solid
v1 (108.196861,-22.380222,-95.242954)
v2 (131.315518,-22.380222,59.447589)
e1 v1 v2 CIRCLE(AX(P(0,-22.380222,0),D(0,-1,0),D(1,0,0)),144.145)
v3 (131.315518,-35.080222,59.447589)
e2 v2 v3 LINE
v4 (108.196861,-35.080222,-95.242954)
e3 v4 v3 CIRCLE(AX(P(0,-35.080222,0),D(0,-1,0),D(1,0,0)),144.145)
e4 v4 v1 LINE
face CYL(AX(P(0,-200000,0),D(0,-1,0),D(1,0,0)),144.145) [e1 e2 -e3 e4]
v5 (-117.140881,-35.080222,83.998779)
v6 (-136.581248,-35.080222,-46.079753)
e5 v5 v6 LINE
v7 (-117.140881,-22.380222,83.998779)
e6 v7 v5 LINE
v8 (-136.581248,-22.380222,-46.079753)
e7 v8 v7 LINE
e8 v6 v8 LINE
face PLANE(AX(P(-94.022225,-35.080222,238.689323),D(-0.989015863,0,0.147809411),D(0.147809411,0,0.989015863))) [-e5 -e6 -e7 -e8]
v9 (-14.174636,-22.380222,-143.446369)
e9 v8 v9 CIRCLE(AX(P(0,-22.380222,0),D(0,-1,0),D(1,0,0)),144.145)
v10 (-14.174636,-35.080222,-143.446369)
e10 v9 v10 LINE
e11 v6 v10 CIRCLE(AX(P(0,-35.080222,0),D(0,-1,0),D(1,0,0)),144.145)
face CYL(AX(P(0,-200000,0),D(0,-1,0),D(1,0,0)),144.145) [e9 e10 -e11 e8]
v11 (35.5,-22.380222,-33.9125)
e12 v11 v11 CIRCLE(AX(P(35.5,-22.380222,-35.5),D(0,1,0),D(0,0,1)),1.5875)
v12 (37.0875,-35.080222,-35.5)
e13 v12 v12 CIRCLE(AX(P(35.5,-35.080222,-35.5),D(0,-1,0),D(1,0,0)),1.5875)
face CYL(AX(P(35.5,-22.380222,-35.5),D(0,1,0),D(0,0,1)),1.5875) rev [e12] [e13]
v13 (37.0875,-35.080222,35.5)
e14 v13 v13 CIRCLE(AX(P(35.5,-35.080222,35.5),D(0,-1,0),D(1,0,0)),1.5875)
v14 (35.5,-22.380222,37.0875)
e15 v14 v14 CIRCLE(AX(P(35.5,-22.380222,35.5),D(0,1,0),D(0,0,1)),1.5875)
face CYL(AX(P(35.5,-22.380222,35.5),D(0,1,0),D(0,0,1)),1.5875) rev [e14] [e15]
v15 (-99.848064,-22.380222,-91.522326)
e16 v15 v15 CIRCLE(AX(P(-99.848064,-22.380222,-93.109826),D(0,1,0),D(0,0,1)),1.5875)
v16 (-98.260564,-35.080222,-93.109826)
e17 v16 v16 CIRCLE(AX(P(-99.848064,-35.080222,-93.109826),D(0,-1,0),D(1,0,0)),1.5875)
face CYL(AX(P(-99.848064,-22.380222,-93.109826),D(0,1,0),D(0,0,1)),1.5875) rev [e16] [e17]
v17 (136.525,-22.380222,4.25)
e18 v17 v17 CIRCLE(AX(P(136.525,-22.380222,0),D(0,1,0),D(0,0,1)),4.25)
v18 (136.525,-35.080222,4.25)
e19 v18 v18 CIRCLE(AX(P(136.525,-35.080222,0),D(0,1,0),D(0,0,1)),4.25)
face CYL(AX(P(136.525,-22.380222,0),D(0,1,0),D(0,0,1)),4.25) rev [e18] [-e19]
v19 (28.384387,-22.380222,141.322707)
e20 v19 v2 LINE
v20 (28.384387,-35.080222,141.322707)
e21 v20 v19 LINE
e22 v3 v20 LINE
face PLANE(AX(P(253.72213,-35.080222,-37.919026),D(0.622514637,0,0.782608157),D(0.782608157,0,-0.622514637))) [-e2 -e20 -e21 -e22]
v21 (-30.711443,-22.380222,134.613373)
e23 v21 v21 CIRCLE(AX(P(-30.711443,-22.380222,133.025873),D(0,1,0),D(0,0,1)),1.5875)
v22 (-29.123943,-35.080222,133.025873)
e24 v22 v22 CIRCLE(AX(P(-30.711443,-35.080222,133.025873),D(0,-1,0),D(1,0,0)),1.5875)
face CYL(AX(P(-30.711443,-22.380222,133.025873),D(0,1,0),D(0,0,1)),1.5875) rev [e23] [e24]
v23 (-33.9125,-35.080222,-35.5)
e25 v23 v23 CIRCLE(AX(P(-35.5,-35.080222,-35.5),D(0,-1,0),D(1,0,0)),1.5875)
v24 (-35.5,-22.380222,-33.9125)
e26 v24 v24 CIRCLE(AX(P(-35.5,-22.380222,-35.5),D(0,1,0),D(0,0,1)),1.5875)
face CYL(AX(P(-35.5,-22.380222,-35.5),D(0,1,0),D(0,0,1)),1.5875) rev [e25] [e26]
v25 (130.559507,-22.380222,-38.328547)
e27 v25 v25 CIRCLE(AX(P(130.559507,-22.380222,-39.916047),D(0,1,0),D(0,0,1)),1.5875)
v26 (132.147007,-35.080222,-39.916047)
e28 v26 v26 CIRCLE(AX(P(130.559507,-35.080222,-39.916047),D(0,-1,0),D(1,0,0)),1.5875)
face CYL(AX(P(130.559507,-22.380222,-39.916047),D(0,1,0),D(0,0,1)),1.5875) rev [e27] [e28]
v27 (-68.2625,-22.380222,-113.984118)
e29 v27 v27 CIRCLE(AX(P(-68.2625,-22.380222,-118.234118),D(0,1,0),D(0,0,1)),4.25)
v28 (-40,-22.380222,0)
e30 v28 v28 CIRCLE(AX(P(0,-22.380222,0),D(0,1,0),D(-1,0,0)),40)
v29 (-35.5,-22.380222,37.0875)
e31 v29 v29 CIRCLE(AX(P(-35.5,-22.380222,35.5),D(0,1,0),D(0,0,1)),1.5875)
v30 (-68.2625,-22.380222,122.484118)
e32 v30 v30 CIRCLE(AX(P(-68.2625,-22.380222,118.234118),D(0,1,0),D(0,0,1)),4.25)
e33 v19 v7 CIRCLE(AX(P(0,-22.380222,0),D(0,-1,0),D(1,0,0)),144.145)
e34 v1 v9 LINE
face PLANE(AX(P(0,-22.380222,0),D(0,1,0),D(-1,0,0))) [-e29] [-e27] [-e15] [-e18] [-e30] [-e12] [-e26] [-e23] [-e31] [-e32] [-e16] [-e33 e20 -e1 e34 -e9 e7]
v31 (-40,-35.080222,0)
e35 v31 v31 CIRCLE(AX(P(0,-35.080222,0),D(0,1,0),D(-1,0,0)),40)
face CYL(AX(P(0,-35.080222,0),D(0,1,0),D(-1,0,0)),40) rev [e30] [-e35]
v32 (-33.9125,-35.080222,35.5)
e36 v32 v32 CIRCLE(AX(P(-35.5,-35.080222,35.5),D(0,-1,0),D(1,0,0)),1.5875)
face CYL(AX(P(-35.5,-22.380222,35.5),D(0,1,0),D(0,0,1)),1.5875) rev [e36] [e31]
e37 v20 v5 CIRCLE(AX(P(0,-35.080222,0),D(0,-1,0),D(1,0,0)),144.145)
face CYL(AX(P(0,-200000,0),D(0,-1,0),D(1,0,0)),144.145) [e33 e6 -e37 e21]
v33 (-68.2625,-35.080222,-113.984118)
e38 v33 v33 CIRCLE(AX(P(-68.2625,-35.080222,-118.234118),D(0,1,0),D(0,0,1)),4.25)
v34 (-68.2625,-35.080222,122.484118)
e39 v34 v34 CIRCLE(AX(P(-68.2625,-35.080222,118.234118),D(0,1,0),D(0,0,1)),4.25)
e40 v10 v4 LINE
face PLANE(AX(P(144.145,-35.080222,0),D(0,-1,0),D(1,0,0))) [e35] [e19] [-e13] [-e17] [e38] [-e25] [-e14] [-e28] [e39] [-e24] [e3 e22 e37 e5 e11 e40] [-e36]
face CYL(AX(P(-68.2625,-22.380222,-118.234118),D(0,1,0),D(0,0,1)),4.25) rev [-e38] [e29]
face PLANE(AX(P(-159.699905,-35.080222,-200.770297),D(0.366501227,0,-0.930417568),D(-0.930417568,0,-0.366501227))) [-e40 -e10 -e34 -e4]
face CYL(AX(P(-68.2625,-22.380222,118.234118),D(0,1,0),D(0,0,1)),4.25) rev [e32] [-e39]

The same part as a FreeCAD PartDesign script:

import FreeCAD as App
import Part
import Sketcher
Q = App.Units.Quantity

doc = App.newDocument("Part")
params = doc.addObject("Spreadsheet::Sheet", "Params")
for row, (alias, value) in enumerate([
    ("sketch1_height", "0.5 in"),
    ("sketch1_width", "5.675 in"),
    ("revolution_angle", "360 deg"),
    ("sketch2_diameter", "0.125 in"),
    ("hole_diameter", "0.125 in"),
    ("hole2_diameter", "8.5 mm"),
], start=1):
    params.set(f"A{row}", alias)
    params.set(f"B{row}", "=" + value)
    params.setAlias(f"B{row}", alias)

body = doc.addObject("PartDesign::Body", "Body")

# Sketch on XY plane
sketch1 = doc.addObject("Sketcher::SketchObject", "Sketch")
body.addObject(sketch1)
sketch1.AttachmentSupport = (doc.XY_Plane, [""])
sketch1.MapMode = "FlatFace"
sketch1.addGeometry(Part.LineSegment(App.Vector(0, -22, 0), App.Vector(0, -35, 0)), False)
sketch1.addGeometry(Part.LineSegment(App.Vector(0, -35, 0), App.Vector(144, -35, 0)), False)
sketch1.addGeometry(Part.LineSegment(App.Vector(144, -35, 0), App.Vector(144, -22, 0)), False)
sketch1.addGeometry(Part.LineSegment(App.Vector(144, -22, 0), App.Vector(0, -22, 0)), False)
sketch1.addConstraint(Sketcher.Constraint("Coincident", 0, 2, 1, 1))
sketch1.addConstraint(Sketcher.Constraint("Coincident", 1, 2, 2, 1))
sketch1.addConstraint(Sketcher.Constraint("Coincident", 2, 2, 3, 1))
sketch1.addConstraint(Sketcher.Constraint("Coincident", 3, 2, 0, 1))
sketch1.addConstraint(Sketcher.Constraint("Vertical", 0))
sketch1.addConstraint(Sketcher.Constraint("Horizontal", 1))
sketch1.addConstraint(Sketcher.Constraint("Vertical", 2))
sketch1.addConstraint(Sketcher.Constraint("Horizontal", 3))
sketch1.addConstraint(Sketcher.Constraint("PointOnObject", 0, 2, -2))
sketch1.addConstraint(Sketcher.Constraint("DistanceY", 0, 2, 0, 1, Q("0.5 in")))
sketch1.addConstraint(Sketcher.Constraint("DistanceX", 1, 1, 1, 2, Q("5.675 in")))
sketch1.addConstraint(Sketcher.Constraint("DistanceY", 0, 2, -1, 1, Q("35.080222 mm")))
sketch1.setExpression("Constraints[9]", "Params.sketch1_height")
sketch1.setExpression("Constraints[10]", "Params.sketch1_width")
revolution = doc.addObject("PartDesign::Revolution", "Revolution")
body.addObject(revolution)
revolution.Profile = sketch1
revolution.ReferenceAxis = (sketch1, ["V_Axis"])
revolution.setExpression("Angle", "Params.revolution_angle")

# Sketch on XZ plane
sketch2 = doc.addObject("Sketcher::SketchObject", "Sketch001")
body.addObject(sketch2)
sketch2.AttachmentSupport = (doc.XZ_Plane, [""])
sketch2.MapMode = "FlatFace"
sketch2.AttachmentOffset = App.Placement(App.Vector(0, 0, 22.380222), App.Rotation())
sketch2.addGeometry(Part.Circle(App.Vector(136.5, 0, 0), App.Vector(0, 0, 1), 1.6), False)
sketch2.addGeometry(Part.Circle(App.Vector(-68.3, 118.2, 0), App.Vector(0, 0, 1), 1.6), False)
sketch2.addGeometry(Part.Circle(App.Vector(-68.3, -118.2, 0), App.Vector(0, 0, 1), 1.6), False)
sketch2.addGeometry(Part.Circle(App.Vector(-99.8, -93.1, 0), App.Vector(0, 0, 1), 1.6), False)
sketch2.addGeometry(Part.Circle(App.Vector(130.6, -39.9, 0), App.Vector(0, 0, 1), 1.6), False)
sketch2.addGeometry(Part.Circle(App.Vector(-30.7, 133, 0), App.Vector(0, 0, 1), 1.6), False)
sketch2.addGeometry(Part.Circle(App.Vector(-35.5, 35.5, 0), App.Vector(0, 0, 1), 1.6), False)
sketch2.addGeometry(Part.Circle(App.Vector(-35.5, -35.5, 0), App.Vector(0, 0, 1), 1.6), False)
sketch2.addGeometry(Part.Circle(App.Vector(35.5, -35.5, 0), App.Vector(0, 0, 1), 1.6), False)
sketch2.addGeometry(Part.Circle(App.Vector(35.5, 35.5, 0), App.Vector(0, 0, 1), 1.6), False)
sketch2.addConstraint(Sketcher.Constraint("Equal", 0, 1))
sketch2.addConstraint(Sketcher.Constraint("Equal", 1, 2))
sketch2.addConstraint(Sketcher.Constraint("Equal", 2, 3))
sketch2.addConstraint(Sketcher.Constraint("Equal", 3, 4))
sketch2.addConstraint(Sketcher.Constraint("Equal", 4, 5))
sketch2.addConstraint(Sketcher.Constraint("Equal", 5, 6))
sketch2.addConstraint(Sketcher.Constraint("Equal", 6, 7))
sketch2.addConstraint(Sketcher.Constraint("Equal", 7, 8))
sketch2.addConstraint(Sketcher.Constraint("Equal", 8, 9))
sketch2.addConstraint(Sketcher.Constraint("Symmetric", 6, 3, 8, 3, -1, 1))
sketch2.addConstraint(Sketcher.Constraint("Symmetric", 7, 3, 9, 3, -1, 1))
sketch2.addConstraint(Sketcher.Constraint("Symmetric", 7, 3, 8, 3, -2))
sketch2.addConstraint(Sketcher.Constraint("Symmetric", 1, 3, 2, 3, -1))
sketch2.addConstraint(Sketcher.Constraint("PointOnObject", 0, 3, -1))
sketch2.addConstraint(Sketcher.Constraint("Diameter", 0, Q("0.125 in")))
sketch2.addConstraint(Sketcher.Constraint("DistanceX", -1, 1, 0, 3, Q("5.375 in")))
sketch2.addConstraint(Sketcher.Constraint("DistanceX", 1, 3, -1, 1, Q("2.6875 in")))
sketch2.addConstraint(Sketcher.Constraint("DistanceX", 6, 3, -1, 1, Q("35.5 mm")))
sketch2.addConstraint(Sketcher.Constraint("DistanceY", -1, 1, 6, 3, Q("35.5 mm")))
sketch2.addConstraint(Sketcher.Constraint("DistanceY", 3, 3, 5, 3, Q("226.135699 mm")))
sketch2.addConstraint(Sketcher.Constraint("DistanceY", -1, 1, 1, 3, Q("118.234118 mm")))
sketch2.addConstraint(Sketcher.Constraint("DistanceY", 2, 3, 4, 3, Q("78.318071 mm")))
sketch2.addConstraint(Sketcher.Constraint("DistanceX", 3, 3, 4, 3, Q("230.407571 mm")))
sketch2.addConstraint(Sketcher.Constraint("DistanceY", 3, 3, 4, 3, Q("53.193779 mm")))
sketch2.addConstraint(Sketcher.Constraint("DistanceX", 5, 3, 4, 3, Q("161.27095 mm")))
sketch2.addConstraint(Sketcher.Constraint("DistanceX", 3, 3, -1, 1, Q("99.848064 mm")))
sketch2.setExpression("Constraints[14]", "Params.sketch2_diameter")
doc.recompute()
hole = doc.addObject("PartDesign::Hole", "Hole")
body.addObject(hole)
hole.Profile = sketch2
hole.ThreadType = "None"
hole.setExpression("Diameter", "Params.hole_diameter")
hole.DepthType = "ThroughAll"
hole.Reversed = True

# Sketch on XZ plane
sketch3 = doc.addObject("Sketcher::SketchObject", "Sketch002")
body.addObject(sketch3)
sketch3.AttachmentSupport = (doc.XZ_Plane, [""])
sketch3.MapMode = "FlatFace"
sketch3.AttachmentOffset = App.Placement(App.Vector(0, 0, 22.380222), App.Rotation())
sketch3.addGeometry(Part.LineSegment(App.Vector(-186, -186, 0), App.Vector(-186, 186, 0)), False)
sketch3.addGeometry(Part.LineSegment(App.Vector(-186, 186, 0), App.Vector(-102, 186, 0)), False)
sketch3.addGeometry(Part.LineSegment(App.Vector(-102, 186, 0), App.Vector(-157, -186, 0)), False)
sketch3.addGeometry(Part.LineSegment(App.Vector(-157, -186, 0), App.Vector(-186, -186, 0)), False)
sketch3.addGeometry(Part.LineSegment(App.Vector(186, 16, 0), App.Vector(-28, 186, 0)), False)
sketch3.addGeometry(Part.LineSegment(App.Vector(-28, 186, 0), App.Vector(186, 186, 0)), False)
sketch3.addGeometry(Part.LineSegment(App.Vector(186, 186, 0), App.Vector(186, 16, 0)), False)
sketch3.addGeometry(Part.LineSegment(App.Vector(186, -186, 0), App.Vector(-122, -186, 0)), False)
sketch3.addGeometry(Part.LineSegment(App.Vector(-122, -186, 0), App.Vector(186, -65, 0)), False)
sketch3.addGeometry(Part.LineSegment(App.Vector(186, -65, 0), App.Vector(186, -186, 0)), False)
sketch3.addConstraint(Sketcher.Constraint("Coincident", 0, 2, 1, 1))
sketch3.addConstraint(Sketcher.Constraint("Coincident", 1, 2, 2, 1))
sketch3.addConstraint(Sketcher.Constraint("Coincident", 2, 2, 3, 1))
sketch3.addConstraint(Sketcher.Constraint("Coincident", 3, 2, 0, 1))
sketch3.addConstraint(Sketcher.Constraint("Coincident", 4, 2, 5, 1))
sketch3.addConstraint(Sketcher.Constraint("Coincident", 5, 2, 6, 1))
sketch3.addConstraint(Sketcher.Constraint("Coincident", 6, 2, 4, 1))
sketch3.addConstraint(Sketcher.Constraint("Coincident", 7, 2, 8, 1))
sketch3.addConstraint(Sketcher.Constraint("Coincident", 8, 2, 9, 1))
sketch3.addConstraint(Sketcher.Constraint("Coincident", 9, 2, 7, 1))
sketch3.addConstraint(Sketcher.Constraint("Vertical", 0))
sketch3.addConstraint(Sketcher.Constraint("Horizontal", 1))
sketch3.addConstraint(Sketcher.Constraint("Horizontal", 3))
sketch3.addConstraint(Sketcher.Constraint("Horizontal", 5))
sketch3.addConstraint(Sketcher.Constraint("Vertical", 6))
sketch3.addConstraint(Sketcher.Constraint("Horizontal", 7))
sketch3.addConstraint(Sketcher.Constraint("Vertical", 9))
sketch3.addConstraint(Sketcher.Constraint("Symmetric", 3, 2, 5, 2, -1, 1))
sketch3.addConstraint(Sketcher.Constraint("Symmetric", 0, 2, 9, 2, -1, 1))
sketch3.addConstraint(Sketcher.Constraint("Horizontal", 1, 2, 4, 2))
sketch3.addConstraint(Sketcher.Constraint("Angle", 2, Q("-98.5 deg")))
sketch3.addConstraint(Sketcher.Constraint("Angle", 4, Q("141.5 deg")))
sketch3.addConstraint(Sketcher.Constraint("Angle", 8, Q("21.5 deg")))
sketch3.addConstraint(Sketcher.Constraint("DistanceY", 0, 1, 0, 2, Q("371.87 mm")))
sketch3.addConstraint(Sketcher.Constraint("DistanceX", 1, 1, 1, 2, Q("84.028589 mm")))
sketch3.addConstraint(Sketcher.Constraint("DistanceX", 5, 1, 5, 2, Q("213.635951 mm")))
sketch3.addConstraint(Sketcher.Constraint("DistanceX", 7, 2, 7, 1, Q("307.97331 mm")))
sketch3.addConstraint(Sketcher.Constraint("DistanceX", 0, 2, -1, 1, Q("185.935 mm")))
pocket1 = doc.addObject("PartDesign::Pocket", "Pocket")
body.addObject(pocket1)
pocket1.Profile = sketch3
pocket1.Type = "ThroughAll"
pocket1.Reversed = True

# Sketch on XZ plane
sketch4 = doc.addObject("Sketcher::SketchObject", "Sketch003")
body.addObject(sketch4)
sketch4.AttachmentSupport = (doc.XZ_Plane, [""])
sketch4.MapMode = "FlatFace"
sketch4.AttachmentOffset = App.Placement(App.Vector(0, 0, 22.380222), App.Rotation())
sketch4.addGeometry(Part.Circle(App.Vector(0, 0, 0), App.Vector(0, 0, 1), 40), False)
sketch4.addConstraint(Sketcher.Constraint("Coincident", 0, 3, -1, 1))
sketch4.addConstraint(Sketcher.Constraint("Diameter", 0, Q("80 mm")))
pocket2 = doc.addObject("PartDesign::Pocket", "Pocket001")
body.addObject(pocket2)
pocket2.Profile = sketch4
pocket2.Type = "ThroughAll"
pocket2.Reversed = True

# Sketch on XZ plane
sketch5 = doc.addObject("Sketcher::SketchObject", "Sketch004")
body.addObject(sketch5)
sketch5.AttachmentSupport = (doc.XZ_Plane, [""])
sketch5.MapMode = "FlatFace"
sketch5.AttachmentOffset = App.Placement(App.Vector(0, 0, 22.380222), App.Rotation())
sketch5.addGeometry(Part.Circle(App.Vector(-68.3, -118.2, 0), App.Vector(0, 0, 1), 4.2), False)
sketch5.addGeometry(Part.Circle(App.Vector(136.5, 0, 0), App.Vector(0, 0, 1), 4.2), False)
sketch5.addGeometry(Part.Circle(App.Vector(-68.3, 118.2, 0), App.Vector(0, 0, 1), 4.2), False)
sketch5.addConstraint(Sketcher.Constraint("Equal", 0, 1))
sketch5.addConstraint(Sketcher.Constraint("Equal", 1, 2))
sketch5.addConstraint(Sketcher.Constraint("Symmetric", 0, 3, 2, 3, -1))
sketch5.addConstraint(Sketcher.Constraint("PointOnObject", 1, 3, -1))
sketch5.addConstraint(Sketcher.Constraint("Diameter", 0, Q("8.5 mm")))
sketch5.addConstraint(Sketcher.Constraint("DistanceX", 0, 3, -1, 1, Q("2.6875 in")))
sketch5.addConstraint(Sketcher.Constraint("DistanceX", -1, 1, 1, 3, Q("5.375 in")))
sketch5.addConstraint(Sketcher.Constraint("DistanceY", 0, 3, -1, 1, Q("118.234118 mm")))
doc.recompute()
hole2 = doc.addObject("PartDesign::Hole", "Hole001")
body.addObject(hole2)
hole2.Profile = sketch5
hole2.ThreadType = "None"
hole2.setExpression("Diameter", "Params.hole2_diameter")
hole2.DepthType = "ThroughAll"
hole2.Reversed = True

doc.recompute()
